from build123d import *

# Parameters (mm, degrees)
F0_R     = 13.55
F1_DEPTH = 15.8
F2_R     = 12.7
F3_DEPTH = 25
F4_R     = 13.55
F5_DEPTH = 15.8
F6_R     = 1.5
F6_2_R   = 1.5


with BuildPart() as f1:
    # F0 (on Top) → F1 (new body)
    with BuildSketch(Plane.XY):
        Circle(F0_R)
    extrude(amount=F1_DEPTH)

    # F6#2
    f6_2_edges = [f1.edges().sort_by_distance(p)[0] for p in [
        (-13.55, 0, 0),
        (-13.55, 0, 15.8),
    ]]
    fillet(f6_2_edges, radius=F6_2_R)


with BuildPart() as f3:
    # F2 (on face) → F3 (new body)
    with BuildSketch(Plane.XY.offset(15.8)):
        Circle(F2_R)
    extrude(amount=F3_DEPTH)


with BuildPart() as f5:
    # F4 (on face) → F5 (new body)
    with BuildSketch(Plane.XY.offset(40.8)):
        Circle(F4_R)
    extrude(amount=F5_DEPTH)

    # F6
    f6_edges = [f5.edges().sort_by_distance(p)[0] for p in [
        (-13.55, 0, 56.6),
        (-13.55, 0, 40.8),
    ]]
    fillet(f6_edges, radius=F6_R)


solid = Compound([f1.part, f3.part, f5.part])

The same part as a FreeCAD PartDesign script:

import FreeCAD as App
import Part
import Sketcher

V = App.Vector
Q = App.Units.Quantity


def edges_at(feature, points):
    """Names of the edges that pass closest to the given points."""
    edges = feature.Shape.Edges
    near = lambda p: min(range(len(edges)), key=lambda i: edges[i].distToShape(Part.Vertex(*p))[0])
    return sorted({f"Edge{near(p) + 1}" for p in points})

doc = App.newDocument("Part")
body = doc.addObject("PartDesign::Body", "Body")

# Sketch on XY plane
sketch1 = body.newObject("Sketcher::SketchObject", "Sketch")
sketch1.AttachmentSupport = (doc.getObject("XY_Plane"), [""])
sketch1.MapMode = "FlatFace"
sketch1.addGeometry(Part.Circle(V(0, 0, 0), V(0, 0, 1), 14), False)
sketch1.addConstraint(Sketcher.Constraint("Coincident", 0, 3, -1, 1))
sketch1.addConstraint(Sketcher.Constraint("Diameter", 0, Q("27.1 mm")))
pad1 = body.newObject("PartDesign::Pad", "Pad")
pad1.Profile = sketch1
pad1.Length = 15.8
doc.recompute()

fillet = body.newObject("PartDesign::Fillet", "Fillet")
fillet.Base = (pad1, edges_at(pad1, [(-13.55, 0, 0), (-13.55, 0, 15.8)]))
fillet.Radius = 1.5
body2 = doc.addObject("PartDesign::Body", "Body001")

# Sketch on XY plane
sketch2 = body2.newObject("Sketcher::SketchObject", "Sketch001")
sketch2.AttachmentSupport = (doc.getObject("XY_Plane001"), [""])
sketch2.MapMode = "FlatFace"
sketch2.AttachmentOffset = App.Placement(V(0, 0, 15.8), App.Rotation())
sketch2.addGeometry(Part.Circle(V(0, 0, 0), V(0, 0, 1), 13), False)
sketch2.addConstraint(Sketcher.Constraint("Coincident", 0, 3, -1, 1))
sketch2.addConstraint(Sketcher.Constraint("Diameter", 0, Q("25.4 mm")))
pad2 = body2.newObject("PartDesign::Pad", "Pad001")
pad2.Profile = sketch2
pad2.Length = 25
body3 = doc.addObject("PartDesign::Body", "Body002")

# Sketch on XY plane
sketch3 = body3.newObject("Sketcher::SketchObject", "Sketch002")
sketch3.AttachmentSupport = (doc.getObject("XY_Plane002"), [""])
sketch3.MapMode = "FlatFace"
sketch3.AttachmentOffset = App.Placement(V(0, 0, 40.8), App.Rotation())
sketch3.addGeometry(Part.Circle(V(0, 0, 0), V(0, 0, 1), 14), False)
sketch3.addConstraint(Sketcher.Constraint("Coincident", 0, 3, -1, 1))
sketch3.addConstraint(Sketcher.Constraint("Diameter", 0, Q("27.1 mm")))
pad3 = body3.newObject("PartDesign::Pad", "Pad002")
pad3.Profile = sketch3
pad3.Length = 15.8
doc.recompute()

fillet2 = body3.newObject("PartDesign::Fillet", "Fillet001")
fillet2.Base = (pad3, edges_at(pad3, [(-13.55, 0, 56.6), (-13.55, 0, 40.8)]))
fillet2.Radius = 1.5

doc.recompute()
